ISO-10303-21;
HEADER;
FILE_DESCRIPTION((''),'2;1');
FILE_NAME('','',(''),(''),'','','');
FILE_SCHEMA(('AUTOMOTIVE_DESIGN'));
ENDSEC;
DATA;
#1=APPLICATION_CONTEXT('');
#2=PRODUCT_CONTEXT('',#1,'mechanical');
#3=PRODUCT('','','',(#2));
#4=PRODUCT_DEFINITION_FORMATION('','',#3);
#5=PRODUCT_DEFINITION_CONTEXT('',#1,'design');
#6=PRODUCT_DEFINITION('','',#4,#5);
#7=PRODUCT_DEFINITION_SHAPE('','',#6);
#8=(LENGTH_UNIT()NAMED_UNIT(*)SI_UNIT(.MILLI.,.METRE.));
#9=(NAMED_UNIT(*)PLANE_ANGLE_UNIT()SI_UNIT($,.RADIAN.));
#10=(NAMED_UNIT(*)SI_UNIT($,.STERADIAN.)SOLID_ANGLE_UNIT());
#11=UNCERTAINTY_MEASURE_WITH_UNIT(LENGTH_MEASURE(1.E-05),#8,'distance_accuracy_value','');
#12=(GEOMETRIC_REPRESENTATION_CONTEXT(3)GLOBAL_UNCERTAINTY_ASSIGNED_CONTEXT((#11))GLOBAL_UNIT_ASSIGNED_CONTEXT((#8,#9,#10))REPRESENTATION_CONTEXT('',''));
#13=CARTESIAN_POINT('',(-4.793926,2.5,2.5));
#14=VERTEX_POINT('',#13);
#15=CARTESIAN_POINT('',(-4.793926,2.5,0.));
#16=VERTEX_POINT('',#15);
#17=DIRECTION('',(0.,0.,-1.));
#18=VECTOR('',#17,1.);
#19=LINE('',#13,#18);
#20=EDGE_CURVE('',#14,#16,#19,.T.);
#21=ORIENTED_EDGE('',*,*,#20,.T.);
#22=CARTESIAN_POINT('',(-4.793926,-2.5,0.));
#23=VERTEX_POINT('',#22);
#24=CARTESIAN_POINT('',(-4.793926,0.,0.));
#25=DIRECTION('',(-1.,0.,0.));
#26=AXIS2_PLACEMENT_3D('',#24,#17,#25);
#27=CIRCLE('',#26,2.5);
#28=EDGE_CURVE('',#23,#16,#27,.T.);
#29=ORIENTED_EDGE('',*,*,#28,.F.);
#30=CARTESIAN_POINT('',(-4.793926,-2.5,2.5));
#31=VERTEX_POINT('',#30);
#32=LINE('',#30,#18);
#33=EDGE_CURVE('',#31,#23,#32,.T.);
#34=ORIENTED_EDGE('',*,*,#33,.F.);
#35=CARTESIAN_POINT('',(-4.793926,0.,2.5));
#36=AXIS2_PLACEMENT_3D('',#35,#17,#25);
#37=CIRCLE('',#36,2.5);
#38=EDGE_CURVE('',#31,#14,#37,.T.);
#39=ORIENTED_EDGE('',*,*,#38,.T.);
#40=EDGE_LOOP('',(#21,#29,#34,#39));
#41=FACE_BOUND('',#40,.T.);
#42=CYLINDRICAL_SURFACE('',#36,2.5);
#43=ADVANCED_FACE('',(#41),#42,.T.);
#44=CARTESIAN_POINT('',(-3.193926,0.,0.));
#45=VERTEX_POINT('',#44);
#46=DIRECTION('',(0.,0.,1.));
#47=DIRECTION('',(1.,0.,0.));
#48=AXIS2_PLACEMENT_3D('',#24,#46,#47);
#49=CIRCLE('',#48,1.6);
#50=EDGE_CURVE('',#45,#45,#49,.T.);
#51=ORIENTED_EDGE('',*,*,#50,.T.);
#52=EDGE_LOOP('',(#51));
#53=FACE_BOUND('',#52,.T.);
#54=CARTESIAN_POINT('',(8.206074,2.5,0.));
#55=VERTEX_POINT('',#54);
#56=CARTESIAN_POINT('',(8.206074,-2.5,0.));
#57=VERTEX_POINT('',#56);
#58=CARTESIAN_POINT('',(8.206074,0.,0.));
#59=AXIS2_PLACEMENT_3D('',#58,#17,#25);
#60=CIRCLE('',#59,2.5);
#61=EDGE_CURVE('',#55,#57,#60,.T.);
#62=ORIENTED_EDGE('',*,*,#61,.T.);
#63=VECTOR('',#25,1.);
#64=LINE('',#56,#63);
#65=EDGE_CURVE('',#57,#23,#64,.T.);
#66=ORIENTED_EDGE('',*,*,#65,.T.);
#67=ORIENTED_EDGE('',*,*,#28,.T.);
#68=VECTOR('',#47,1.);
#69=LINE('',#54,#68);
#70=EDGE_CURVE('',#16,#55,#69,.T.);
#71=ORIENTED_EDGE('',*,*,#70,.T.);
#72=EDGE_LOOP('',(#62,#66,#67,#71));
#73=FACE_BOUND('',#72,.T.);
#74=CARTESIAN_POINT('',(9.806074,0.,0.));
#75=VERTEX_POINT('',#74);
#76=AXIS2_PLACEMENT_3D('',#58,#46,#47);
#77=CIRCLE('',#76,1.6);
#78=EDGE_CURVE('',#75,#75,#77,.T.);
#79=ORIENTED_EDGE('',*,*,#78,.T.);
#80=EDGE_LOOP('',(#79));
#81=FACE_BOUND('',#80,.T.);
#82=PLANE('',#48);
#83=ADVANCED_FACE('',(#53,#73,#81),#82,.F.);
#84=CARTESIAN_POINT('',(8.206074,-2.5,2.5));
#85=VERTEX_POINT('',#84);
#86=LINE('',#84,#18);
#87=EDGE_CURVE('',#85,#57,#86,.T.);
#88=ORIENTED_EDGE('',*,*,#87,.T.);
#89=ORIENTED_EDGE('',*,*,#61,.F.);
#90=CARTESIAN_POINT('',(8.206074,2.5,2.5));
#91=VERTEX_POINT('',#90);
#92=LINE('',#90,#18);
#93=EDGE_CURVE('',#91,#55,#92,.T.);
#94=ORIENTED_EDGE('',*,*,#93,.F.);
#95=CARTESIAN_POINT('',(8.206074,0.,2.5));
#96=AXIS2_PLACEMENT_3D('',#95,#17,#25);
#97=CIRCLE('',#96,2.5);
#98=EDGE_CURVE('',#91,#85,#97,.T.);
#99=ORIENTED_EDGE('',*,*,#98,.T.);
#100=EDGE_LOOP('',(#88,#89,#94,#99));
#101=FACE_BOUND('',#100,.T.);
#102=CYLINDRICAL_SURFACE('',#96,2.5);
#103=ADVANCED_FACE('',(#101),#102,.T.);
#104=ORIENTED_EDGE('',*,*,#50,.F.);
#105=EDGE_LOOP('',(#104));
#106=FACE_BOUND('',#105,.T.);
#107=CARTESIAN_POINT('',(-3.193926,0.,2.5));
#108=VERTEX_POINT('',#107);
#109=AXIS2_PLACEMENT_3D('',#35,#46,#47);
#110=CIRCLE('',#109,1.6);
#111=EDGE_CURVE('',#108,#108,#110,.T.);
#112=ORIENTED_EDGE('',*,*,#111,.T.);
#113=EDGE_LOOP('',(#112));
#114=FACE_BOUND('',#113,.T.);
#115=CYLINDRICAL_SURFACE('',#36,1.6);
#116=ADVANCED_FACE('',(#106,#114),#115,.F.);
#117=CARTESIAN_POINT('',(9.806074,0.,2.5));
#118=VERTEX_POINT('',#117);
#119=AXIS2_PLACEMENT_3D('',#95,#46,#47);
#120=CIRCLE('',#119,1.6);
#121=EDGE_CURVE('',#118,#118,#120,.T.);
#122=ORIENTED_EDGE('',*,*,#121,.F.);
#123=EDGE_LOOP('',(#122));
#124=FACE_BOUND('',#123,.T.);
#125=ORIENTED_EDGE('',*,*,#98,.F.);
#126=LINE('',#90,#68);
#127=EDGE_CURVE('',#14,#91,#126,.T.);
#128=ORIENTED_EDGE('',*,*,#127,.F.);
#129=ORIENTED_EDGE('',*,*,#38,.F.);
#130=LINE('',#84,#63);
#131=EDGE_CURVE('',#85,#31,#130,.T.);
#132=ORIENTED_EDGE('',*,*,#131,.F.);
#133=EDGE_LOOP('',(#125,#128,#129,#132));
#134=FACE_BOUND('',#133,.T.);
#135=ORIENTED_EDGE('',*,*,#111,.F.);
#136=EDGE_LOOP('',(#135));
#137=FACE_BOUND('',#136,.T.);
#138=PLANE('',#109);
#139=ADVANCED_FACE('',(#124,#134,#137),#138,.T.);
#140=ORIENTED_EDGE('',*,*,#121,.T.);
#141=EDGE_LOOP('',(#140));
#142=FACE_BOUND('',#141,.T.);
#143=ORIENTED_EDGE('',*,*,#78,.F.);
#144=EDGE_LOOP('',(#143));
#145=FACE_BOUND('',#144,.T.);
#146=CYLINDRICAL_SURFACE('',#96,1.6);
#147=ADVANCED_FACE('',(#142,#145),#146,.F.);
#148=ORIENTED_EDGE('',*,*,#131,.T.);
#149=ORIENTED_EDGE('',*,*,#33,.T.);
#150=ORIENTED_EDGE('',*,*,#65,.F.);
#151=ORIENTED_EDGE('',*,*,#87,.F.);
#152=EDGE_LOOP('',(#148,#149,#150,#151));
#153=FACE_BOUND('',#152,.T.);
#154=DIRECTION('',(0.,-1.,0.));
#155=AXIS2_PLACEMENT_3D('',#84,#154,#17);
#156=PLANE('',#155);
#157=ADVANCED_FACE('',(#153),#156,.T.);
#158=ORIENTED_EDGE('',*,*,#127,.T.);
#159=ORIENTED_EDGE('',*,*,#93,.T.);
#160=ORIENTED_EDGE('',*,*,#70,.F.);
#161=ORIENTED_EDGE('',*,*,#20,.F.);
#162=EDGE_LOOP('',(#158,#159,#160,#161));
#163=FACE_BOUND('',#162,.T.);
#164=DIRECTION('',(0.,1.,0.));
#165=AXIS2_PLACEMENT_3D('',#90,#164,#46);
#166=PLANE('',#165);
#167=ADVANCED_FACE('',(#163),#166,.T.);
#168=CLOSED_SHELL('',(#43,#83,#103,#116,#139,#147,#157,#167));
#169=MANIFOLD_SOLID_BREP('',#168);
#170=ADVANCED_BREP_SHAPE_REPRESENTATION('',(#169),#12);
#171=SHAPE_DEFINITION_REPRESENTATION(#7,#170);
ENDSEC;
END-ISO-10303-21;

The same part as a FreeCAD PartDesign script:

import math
import FreeCAD as App
import Part
import Sketcher

V = App.Vector
Q = App.Units.Quantity

doc = App.newDocument("Part")
params = doc.addObject("Spreadsheet::Sheet", "Params")
for row, (alias, value) in enumerate([
    ("sketch1_radius", "2 mm"),
    ("sketch1_diameter", "3.2 mm"),
    ("sketch1_width", "13 mm"),
    ("pad1_length", "2.5 mm"),
    ("sketch2_diameter", "3.2 mm"),
    ("sketch2_radius", "2.5 mm"),
    ("sketch2_width", "13 mm"),
    ("pad2_length", "2.5 mm"),
], start=1):
    params.set(f"A{row}", alias)
    params.set(f"B{row}", "=" + value)
    params.setAlias(f"B{row}", alias)

body = doc.addObject("PartDesign::Body", "Body")

# Sketch on XY plane
sketch1 = body.newObject("Sketcher::SketchObject", "Sketch")
sketch1.AttachmentSupport = (doc.getObject("XY_Plane"), [""])
sketch1.MapMode = "FlatFace"
sketch1.addGeometry(Part.LineSegment(V(8.206074, 2, 0), V(-4.793926, 2, 0)), False)
sketch1.addGeometry(Part.ArcOfCircle(Part.Circle(V(-4.793926, 0, 0), V(0, 0, 1), 2), math.radians(90), math.radians(270)), False)
sketch1.addGeometry(Part.LineSegment(V(-4.793926, -2, 0), V(8.206074, -2, 0)), False)
sketch1.addGeometry(Part.ArcOfCircle(Part.Circle(V(8.206074, 0, 0), V(0, 0, 1), 2), math.radians(-90), math.radians(90)), False)
sketch1.addGeometry(Part.Circle(V(8.206074, 0, 0), V(0, 0, 1), 1.6), False)
sketch1.addGeometry(Part.Circle(V(-4.793926, 0, 0), V(0, 0, 1), 1.6), False)
sketch1.addConstraint(Sketcher.Constraint("Tangent", 0, 2, 1, 1))
sketch1.addConstraint(Sketcher.Constraint("Tangent", 1, 2, 2, 1))
sketch1.addConstraint(Sketcher.Constraint("Tangent", 2, 2, 3, 1))
sketch1.addConstraint(Sketcher.Constraint("Tangent", 3, 2, 0, 1))
sketch1.addConstraint(Sketcher.Constraint("Horizontal", 0))
sketch1.addConstraint(Sketcher.Constraint("Horizontal", 2))
sketch1.addConstraint(Sketcher.Constraint("Coincident", 4, 3, 3, 3))
sketch1.addConstraint(Sketcher.Constraint("Coincident", 5, 3, 1, 3))
sketch1.addConstraint(Sketcher.Constraint("Equal", 4, 5))
sketch1.addConstraint(Sketcher.Constraint("PointOnObject", 1, 3, -1))
sketch1.addConstraint(Sketcher.Constraint("Radius", 1, Q("2 mm")))
sketch1.addConstraint(Sketcher.Constraint("Diameter", 4, Q("3.2 mm")))
sketch1.addConstraint(Sketcher.Constraint("DistanceX", 0, 2, 0, 1, Q("13 mm")))
sketch1.addConstraint(Sketcher.Constraint("DistanceX", 1, 3, -1, 1, Q("4.793926 mm")))
sketch1.setExpression("Constraints[10]", "Params.sketch1_radius")
sketch1.setExpression("Constraints[11]", "Params.sketch1_diameter")
sketch1.setExpression("Constraints[12]", "Params.sketch1_width")
pad1 = body.newObject("PartDesign::Pad", "Pad")
pad1.Profile = sketch1
pad1.setExpression("Length", "Params.pad1_length")

# Sketch on XY plane
sketch2 = body.newObject("Sketcher::SketchObject", "Sketch001")
sketch2.AttachmentSupport = (doc.getObject("XY_Plane"), [""])
sketch2.MapMode = "FlatFace"
sketch2.addGeometry(Part.LineSegment(V(-4.793926, 2.5, 0), V(8.206074, 2.5, 0)), False)
sketch2.addGeometry(Part.ArcOfCircle(Part.Circle(V(8.206074, 0, 0), V(0, 0, 1), 2.5), math.radians(-90), math.radians(90)), False)
sketch2.addGeometry(Part.LineSegment(V(8.206074, -2.5, 0), V(-4.793926, -2.5, 0)), False)
sketch2.addGeometry(Part.ArcOfCircle(Part.Circle(V(-4.793926, 0, 0), V(0, 0, 1), 2.5), math.radians(90), math.radians(270)), False)
sketch2.addGeometry(Part.Circle(V(-4.793926, 0, 0), V(0, 0, 1), 1.6), False)
sketch2.addGeometry(Part.Circle(V(8.206074, 0, 0), V(0, 0, 1), 1.6), False)
sketch2.addConstraint(Sketcher.Constraint("Tangent", 0, 2, 1, 2))
sketch2.addConstraint(Sketcher.Constraint("Tangent", 1, 1, 2, 1))
sketch2.addConstraint(Sketcher.Constraint("Tangent", 2, 2, 3, 2))
sketch2.addConstraint(Sketcher.Constraint("Tangent", 3, 1, 0, 1))
sketch2.addConstraint(Sketcher.Constraint("Horizontal", 0))
sketch2.addConstraint(Sketcher.Constraint("Horizontal", 2))
sketch2.addConstraint(Sketcher.Constraint("Coincident", 4, 3, 3, 3))
sketch2.addConstraint(Sketcher.Constraint("Coincident", 5, 3, 1, 3))
sketch2.addConstraint(Sketcher.Constraint("Equal", 4, 5))
sketch2.addConstraint(Sketcher.Constraint("PointOnObject", 1, 3, -1))
sketch2.addConstraint(Sketcher.Constraint("Diameter", 4, Q("3.2 mm")))
sketch2.addConstraint(Sketcher.Constraint("Radius", 1, Q("2.5 mm")))
sketch2.addConstraint(Sketcher.Constraint("DistanceX", 0, 1, 0, 2, Q("13 mm")))
sketch2.addConstraint(Sketcher.Constraint("DistanceX", -1, 1, 1, 3, Q("8.206074 mm")))
sketch2.setExpression("Constraints[10]", "Params.sketch2_diameter")
sketch2.setExpression("Constraints[11]", "Params.sketch2_radius")
sketch2.setExpression("Constraints[12]", "Params.sketch2_width")
pad2 = body.newObject("PartDesign::Pad", "Pad001")
pad2.Profile = sketch2
pad2.setExpression("Length", "Params.pad2_length")

doc.recompute()
